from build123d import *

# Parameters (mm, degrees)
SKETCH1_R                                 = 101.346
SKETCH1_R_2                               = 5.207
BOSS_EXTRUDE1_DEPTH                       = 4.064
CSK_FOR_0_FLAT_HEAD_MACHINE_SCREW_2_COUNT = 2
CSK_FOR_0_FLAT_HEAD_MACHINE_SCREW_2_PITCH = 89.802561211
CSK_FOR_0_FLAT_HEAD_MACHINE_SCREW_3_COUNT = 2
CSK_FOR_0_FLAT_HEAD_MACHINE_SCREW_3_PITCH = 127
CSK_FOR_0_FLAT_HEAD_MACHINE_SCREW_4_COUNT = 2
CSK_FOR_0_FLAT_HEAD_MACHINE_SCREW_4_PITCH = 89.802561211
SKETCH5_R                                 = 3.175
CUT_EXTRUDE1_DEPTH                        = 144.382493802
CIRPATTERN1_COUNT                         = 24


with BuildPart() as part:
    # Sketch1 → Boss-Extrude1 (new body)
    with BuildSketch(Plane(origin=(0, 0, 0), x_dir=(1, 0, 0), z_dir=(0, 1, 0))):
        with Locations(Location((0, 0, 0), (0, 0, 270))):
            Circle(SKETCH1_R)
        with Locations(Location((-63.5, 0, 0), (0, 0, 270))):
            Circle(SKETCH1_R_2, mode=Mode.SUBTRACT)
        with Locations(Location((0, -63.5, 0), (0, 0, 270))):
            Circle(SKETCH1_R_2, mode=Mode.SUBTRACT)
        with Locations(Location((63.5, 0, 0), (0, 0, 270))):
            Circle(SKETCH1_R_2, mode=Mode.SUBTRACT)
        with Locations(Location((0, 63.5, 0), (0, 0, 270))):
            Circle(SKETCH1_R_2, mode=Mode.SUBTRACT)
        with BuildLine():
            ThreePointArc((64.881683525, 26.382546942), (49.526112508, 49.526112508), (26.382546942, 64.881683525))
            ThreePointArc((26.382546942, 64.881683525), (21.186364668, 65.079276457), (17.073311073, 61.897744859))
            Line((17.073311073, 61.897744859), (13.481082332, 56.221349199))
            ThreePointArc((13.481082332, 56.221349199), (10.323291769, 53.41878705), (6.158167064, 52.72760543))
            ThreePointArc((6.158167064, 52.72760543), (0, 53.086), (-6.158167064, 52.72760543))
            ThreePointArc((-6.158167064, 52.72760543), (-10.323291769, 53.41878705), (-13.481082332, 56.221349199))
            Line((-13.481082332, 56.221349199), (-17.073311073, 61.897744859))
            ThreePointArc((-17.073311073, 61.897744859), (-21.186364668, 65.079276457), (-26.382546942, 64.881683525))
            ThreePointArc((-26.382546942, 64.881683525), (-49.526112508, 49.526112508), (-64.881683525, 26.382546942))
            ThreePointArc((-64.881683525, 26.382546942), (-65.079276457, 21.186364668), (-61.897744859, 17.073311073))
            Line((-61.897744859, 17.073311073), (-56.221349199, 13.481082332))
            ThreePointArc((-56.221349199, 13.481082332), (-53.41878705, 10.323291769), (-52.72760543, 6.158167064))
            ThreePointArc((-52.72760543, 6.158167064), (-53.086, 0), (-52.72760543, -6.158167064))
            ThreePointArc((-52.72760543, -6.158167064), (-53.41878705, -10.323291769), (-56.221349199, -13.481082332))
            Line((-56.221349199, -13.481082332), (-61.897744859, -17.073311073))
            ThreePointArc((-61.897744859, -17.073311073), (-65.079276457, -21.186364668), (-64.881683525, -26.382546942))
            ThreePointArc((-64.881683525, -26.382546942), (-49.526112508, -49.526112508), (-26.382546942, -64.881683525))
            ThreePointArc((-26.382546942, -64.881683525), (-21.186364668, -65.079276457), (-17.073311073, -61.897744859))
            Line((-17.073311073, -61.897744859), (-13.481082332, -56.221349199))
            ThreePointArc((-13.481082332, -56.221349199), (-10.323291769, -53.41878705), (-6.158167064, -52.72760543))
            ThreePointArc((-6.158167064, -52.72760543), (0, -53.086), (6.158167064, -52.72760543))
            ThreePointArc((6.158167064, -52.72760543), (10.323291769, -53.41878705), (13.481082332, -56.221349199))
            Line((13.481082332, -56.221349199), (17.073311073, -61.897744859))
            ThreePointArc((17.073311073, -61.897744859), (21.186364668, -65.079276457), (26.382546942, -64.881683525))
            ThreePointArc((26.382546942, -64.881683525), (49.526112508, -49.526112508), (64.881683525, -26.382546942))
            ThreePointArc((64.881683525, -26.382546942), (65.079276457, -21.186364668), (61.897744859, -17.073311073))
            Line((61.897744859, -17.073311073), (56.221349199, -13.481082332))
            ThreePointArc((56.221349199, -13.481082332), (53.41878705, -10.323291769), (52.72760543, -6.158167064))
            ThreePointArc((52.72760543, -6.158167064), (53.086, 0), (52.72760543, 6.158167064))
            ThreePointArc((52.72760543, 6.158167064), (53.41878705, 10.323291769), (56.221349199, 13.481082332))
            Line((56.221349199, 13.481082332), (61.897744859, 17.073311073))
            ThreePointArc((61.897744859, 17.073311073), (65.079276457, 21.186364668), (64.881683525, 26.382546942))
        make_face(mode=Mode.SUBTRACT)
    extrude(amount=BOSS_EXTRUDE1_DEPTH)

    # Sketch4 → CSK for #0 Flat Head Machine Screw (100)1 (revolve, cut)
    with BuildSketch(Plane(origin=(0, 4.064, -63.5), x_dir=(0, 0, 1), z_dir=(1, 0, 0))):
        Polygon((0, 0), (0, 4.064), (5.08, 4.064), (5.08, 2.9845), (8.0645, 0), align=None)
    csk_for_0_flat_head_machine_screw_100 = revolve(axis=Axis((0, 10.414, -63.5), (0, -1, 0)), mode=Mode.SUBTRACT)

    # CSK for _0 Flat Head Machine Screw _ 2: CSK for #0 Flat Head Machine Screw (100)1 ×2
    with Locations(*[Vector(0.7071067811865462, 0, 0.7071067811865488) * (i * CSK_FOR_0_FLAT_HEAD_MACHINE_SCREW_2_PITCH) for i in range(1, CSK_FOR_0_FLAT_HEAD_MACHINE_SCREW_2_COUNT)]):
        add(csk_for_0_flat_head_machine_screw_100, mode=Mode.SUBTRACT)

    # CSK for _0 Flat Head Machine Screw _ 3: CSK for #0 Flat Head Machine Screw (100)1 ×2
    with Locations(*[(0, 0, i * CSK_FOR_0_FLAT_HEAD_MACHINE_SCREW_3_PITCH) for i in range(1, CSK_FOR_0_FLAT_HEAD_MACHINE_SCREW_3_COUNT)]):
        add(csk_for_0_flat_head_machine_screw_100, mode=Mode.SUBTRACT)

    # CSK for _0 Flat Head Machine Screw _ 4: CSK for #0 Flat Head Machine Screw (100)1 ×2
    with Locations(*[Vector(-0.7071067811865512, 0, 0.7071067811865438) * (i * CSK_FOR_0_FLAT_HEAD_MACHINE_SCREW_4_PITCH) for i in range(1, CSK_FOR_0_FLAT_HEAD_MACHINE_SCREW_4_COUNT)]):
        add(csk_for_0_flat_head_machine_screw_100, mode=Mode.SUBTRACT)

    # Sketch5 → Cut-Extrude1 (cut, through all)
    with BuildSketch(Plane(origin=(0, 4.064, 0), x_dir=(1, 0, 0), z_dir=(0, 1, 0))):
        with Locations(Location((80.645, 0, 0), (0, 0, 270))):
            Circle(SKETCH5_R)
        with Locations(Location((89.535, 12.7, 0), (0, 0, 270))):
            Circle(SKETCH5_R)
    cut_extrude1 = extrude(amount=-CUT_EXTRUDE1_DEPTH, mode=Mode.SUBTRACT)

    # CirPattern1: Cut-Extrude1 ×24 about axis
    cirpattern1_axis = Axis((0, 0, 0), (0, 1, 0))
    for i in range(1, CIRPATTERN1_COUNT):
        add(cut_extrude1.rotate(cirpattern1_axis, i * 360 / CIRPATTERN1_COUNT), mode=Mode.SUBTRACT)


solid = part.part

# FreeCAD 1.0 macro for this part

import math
import FreeCAD as App
import Part
import Sketcher

V = App.Vector
Q = App.Units.Quantity

doc = App.newDocument("Part")
body = doc.addObject("PartDesign::Body", "Body")

# Sketch on XZ plane
sketch1 = body.newObject("Sketcher::SketchObject", "Sketch")
sketch1.AttachmentSupport = (doc.getObject("XZ_Plane"), [""])
sketch1.MapMode = "FlatFace"
sketch1.addGeometry([
    Part.Circle(V(0, 0, 0), V(0, 0, 1), 101),  # 0
    Part.Circle(V(-64, 0, 0), V(0, 0, 1), 5),  # 1
    Part.Circle(V(0, -64, 0), V(0, 0, 1), 5),  # 2
    Part.Circle(V(64, 0, 0), V(0, 0, 1), 5),  # 3
    Part.ArcOfCircle(Part.Circle(V(0, 0, 0), V(0, 0, 1), 70), math.radians(-68), math.radians(-22)),  # 4
    Part.ArcOfCircle(Part.Circle(V(58, -24, 0), V(0, 0, 1), 8), math.radians(-22), math.radians(58)),  # 5
    Part.LineSegment(V(62, -17, 0), V(56, -13, 0)),  # 6
    Part.ArcOfCircle(Part.Circle(V(60, -7, 0), V(0, 0, 1), 8), math.radians(173), math.radians(238)),  # 7
    Part.ArcOfCircle(Part.Circle(V(0, 0, 0), V(0, 0, 1), 53), math.radians(-6.66), math.radians(6.66)),  # 8
    Part.ArcOfCircle(Part.Circle(V(60, 7, 0), V(0, 0, 1), 8), math.radians(122), math.radians(187)),  # 9
    Part.LineSegment(V(56, 13, 0), V(62, 17, 0)),  # 10
    Part.ArcOfCircle(Part.Circle(V(58, 24, 0), V(0, 0, 1), 8), math.radians(-58), math.radians(22)),  # 11
    Part.ArcOfCircle(Part.Circle(V(0, 0, 0), V(0, 0, 1), 70), math.radians(22), math.radians(68)),  # 12
    Part.ArcOfCircle(Part.Circle(V(24, 58, 0), V(0, 0, 1), 8), math.radians(68), math.radians(148)),  # 13
    Part.LineSegment(V(17, 62, 0), V(13, 56, 0)),  # 14
    Part.ArcOfCircle(Part.Circle(V(7, 60, 0), V(0, 0, 1), 8), math.radians(-97), math.radians(-32)),  # 15
    Part.ArcOfCircle(Part.Circle(V(0, 0, 0), V(0, 0, 1), 53), math.radians(83.34), math.radians(96.66)),  # 16
    Part.ArcOfCircle(Part.Circle(V(-7, 60, 0), V(0, 0, 1), 8), math.radians(-148), math.radians(-83)),  # 17
    Part.LineSegment(V(-13, 56, 0), V(-17, 62, 0)),  # 18
    Part.ArcOfCircle(Part.Circle(V(-24, 58, 0), V(0, 0, 1), 8), math.radians(32), math.radians(112)),  # 19
    Part.ArcOfCircle(Part.Circle(V(0, 0, 0), V(0, 0, 1), 70), math.radians(112), math.radians(158)),  # 20
    Part.ArcOfCircle(Part.Circle(V(-58, 24, 0), V(0, 0, 1), 8), math.radians(158), math.radians(238)),  # 21
    Part.LineSegment(V(-62, 17, 0), V(-56, 13, 0)),  # 22
    Part.ArcOfCircle(Part.Circle(V(-60, 7, 0), V(0, 0, 1), 8), math.radians(-7), math.radians(58)),  # 23
    Part.ArcOfCircle(Part.Circle(V(0, 0, 0), V(0, 0, 1), 53), math.radians(173.34), math.radians(186.66)),  # 24
    Part.ArcOfCircle(Part.Circle(V(-60, -7, 0), V(0, 0, 1), 8), math.radians(-58), math.radians(7)),  # 25
    Part.LineSegment(V(-56, -13, 0), V(-62, -17, 0)),  # 26
    Part.ArcOfCircle(Part.Circle(V(-58, -24, 0), V(0, 0, 1), 8), math.radians(122), math.radians(202)),  # 27
    Part.ArcOfCircle(Part.Circle(V(0, 0, 0), V(0, 0, 1), 70), math.radians(-158), math.radians(-112)),  # 28
    Part.ArcOfCircle(Part.Circle(V(-24, -58, 0), V(0, 0, 1), 8), math.radians(-112), math.radians(-32)),  # 29
    Part.LineSegment(V(-17, -62, 0), V(-13, -56, 0)),  # 30
    Part.ArcOfCircle(Part.Circle(V(-7, -60, 0), V(0, 0, 1), 8), math.radians(83), math.radians(148)),  # 31
    Part.ArcOfCircle(Part.Circle(V(0, 0, 0), V(0, 0, 1), 53), math.radians(-96.66), math.radians(-83.34)),  # 32
    Part.ArcOfCircle(Part.Circle(V(7, -60, 0), V(0, 0, 1), 8), math.radians(32), math.radians(97)),  # 33
    Part.LineSegment(V(13, -56, 0), V(17, -62, 0)),  # 34
    Part.ArcOfCircle(Part.Circle(V(24, -58, 0), V(0, 0, 1), 8), math.radians(-148), math.radians(-68)),  # 35
    Part.Circle(V(0, 64, 0), V(0, 0, 1), 5),  # 36
], False)
sketch1.addConstraint([
    Sketcher.Constraint("Tangent", 4, 2, 5, 1),
    Sketcher.Constraint("Tangent", 5, 2, 6, 1),
    Sketcher.Constraint("Tangent", 6, 2, 7, 2),
    Sketcher.Constraint("Tangent", 7, 1, 8, 1),
    Sketcher.Constraint("Tangent", 8, 2, 9, 2),
    Sketcher.Constraint("Tangent", 9, 1, 10, 1),
    Sketcher.Constraint("Tangent", 10, 2, 11, 1),
    Sketcher.Constraint("Tangent", 11, 2, 12, 1),
    Sketcher.Constraint("Tangent", 12, 2, 13, 1),
    Sketcher.Constraint("Tangent", 13, 2, 14, 1),
    Sketcher.Constraint("Tangent", 14, 2, 15, 2),
    Sketcher.Constraint("Tangent", 15, 1, 16, 1),
    Sketcher.Constraint("Tangent", 16, 2, 17, 2),
    Sketcher.Constraint("Tangent", 17, 1, 18, 1),
    Sketcher.Constraint("Tangent", 18, 2, 19, 1),
    Sketcher.Constraint("Tangent", 19, 2, 20, 1),
    Sketcher.Constraint("Tangent", 20, 2, 21, 1),
    Sketcher.Constraint("Tangent", 21, 2, 22, 1),
    Sketcher.Constraint("Tangent", 22, 2, 23, 2),
    Sketcher.Constraint("Tangent", 23, 1, 24, 1),
    Sketcher.Constraint("Tangent", 24, 2, 25, 2),
    Sketcher.Constraint("Tangent", 25, 1, 26, 1),
    Sketcher.Constraint("Tangent", 26, 2, 27, 1),
    Sketcher.Constraint("Tangent", 27, 2, 28, 1),
    Sketcher.Constraint("Tangent", 28, 2, 29, 1),
    Sketcher.Constraint("Tangent", 29, 2, 30, 1),
    Sketcher.Constraint("Tangent", 30, 2, 31, 2),
    Sketcher.Constraint("Tangent", 31, 1, 32, 1),
    Sketcher.Constraint("Tangent", 32, 2, 33, 2),
    Sketcher.Constraint("Tangent", 33, 1, 34, 1),
    Sketcher.Constraint("Tangent", 34, 2, 35, 1),
    Sketcher.Constraint("Tangent", 35, 2, 4, 1),
    Sketcher.Constraint("Coincident", 0, 3, -1, 1),
    Sketcher.Constraint("Coincident", 4, 3, -1, 1),
    Sketcher.Constraint("Coincident", 8, 3, -1, 1),
    Sketcher.Constraint("Coincident", 12, 3, -1, 1),
    Sketcher.Constraint("Coincident", 16, 3, -1, 1),
    Sketcher.Constraint("Coincident", 20, 3, -1, 1),
    Sketcher.Constraint("Coincident", 24, 3, -1, 1),
    Sketcher.Constraint("Coincident", 28, 3, -1, 1),
    Sketcher.Constraint("Coincident", 32, 3, -1, 1),
    Sketcher.Constraint("Equal", 1, 2),
    Sketcher.Constraint("Equal", 2, 3),
    Sketcher.Constraint("Equal", 5, 7),
    Sketcher.Constraint("Equal", 7, 9),
    Sketcher.Constraint("Equal", 9, 11),
    Sketcher.Constraint("Equal", 4, 12),
    Sketcher.Constraint("Equal", 11, 13),
    Sketcher.Constraint("Equal", 13, 15),
    Sketcher.Constraint("Equal", 8, 16),
    Sketcher.Constraint("Equal", 15, 17),
    Sketcher.Constraint("Equal", 17, 19),
    Sketcher.Constraint("Equal", 12, 20),
    Sketcher.Constraint("Equal", 19, 21),
    Sketcher.Constraint("Equal", 21, 23),
    Sketcher.Constraint("Equal", 16, 24),
    Sketcher.Constraint("Equal", 23, 25),
    Sketcher.Constraint("Equal", 25, 27),
    Sketcher.Constraint("Equal", 20, 28),
    Sketcher.Constraint("Equal", 27, 29),
    Sketcher.Constraint("Equal", 29, 31),
    Sketcher.Constraint("Equal", 24, 32),
    Sketcher.Constraint("Equal", 31, 33),
    Sketcher.Constraint("Equal", 33, 35),
    Sketcher.Constraint("Equal", 3, 36),
    Sketcher.Constraint("Symmetric", 1, 3, 3, 3, -1, 1),
    Sketcher.Constraint("Symmetric", 2, 3, 36, 3, -1, 1),
    Sketcher.Constraint("Symmetric", 5, 2, 21, 2, -1, 1),
    Sketcher.Constraint("Symmetric", 9, 1, 25, 1, -1, 1),
    Sketcher.Constraint("Symmetric", 13, 2, 29, 2, -1, 1),
    Sketcher.Constraint("Symmetric", 17, 1, 33, 1, -1, 1),
    Sketcher.Constraint("Symmetric", 14, 2, 17, 1, -2),
    Sketcher.Constraint("Symmetric", 10, 2, 21, 2, -2),
    Sketcher.Constraint("PointOnObject", 1, 3, -1),
    Sketcher.Constraint("PointOnObject", 2, 3, -2),
    Sketcher.Constraint("Perpendicular", 6, 14),
    Sketcher.Constraint("Equal", 10, 14),
    Sketcher.Constraint("Radius", 5, Q("0.3 in")),
    Sketcher.Constraint("Diameter", 0, Q("7.98 in")),
    Sketcher.Constraint("Diameter", 1, Q("0.41 in")),
    Sketcher.Constraint("Radius", 8, Q("2.09 in")),
    Sketcher.Constraint("DistanceX", 1, 3, -1, 1, Q("2.5 in")),
    Sketcher.Constraint("DistanceY", 2, 3, -1, 1, Q("2.5 in")),
    Sketcher.Constraint("Radius", 4, Q("2.7575 in")),
    Sketcher.Constraint("DistanceY", 5, 3, -1, 1, Q("23.512279 mm")),
    Sketcher.Constraint("DistanceX", -1, 1, 7, 3, Q("60.296161 mm")),
])
pad1 = body.newObject("PartDesign::Pad", "Pad")
pad1.Profile = sketch1
pad1.Length = Q("0.16 in")
pad1.Reversed = True

# Sketch on YZ plane
sketch2 = body.newObject("Sketcher::SketchObject", "Sketch001")
sketch2.AttachmentSupport = (doc.getObject("YZ_Plane"), [""])
sketch2.MapMode = "FlatFace"
sketch2.addGeometry([
    Part.LineSegment(V(0, -63.5, 0), V(4.1, -63.5, 0)),  # 0
    Part.LineSegment(V(4.1, -63.5, 0), V(4.1, -55.4, 0)),  # 1
    Part.LineSegment(V(4.1, -55.4, 0), V(1.1, -58.4, 0)),  # 2
    Part.LineSegment(V(1.1, -58.4, 0), V(0, -58.4, 0)),  # 3
    Part.LineSegment(V(0, -58.4, 0), V(0, -63.5, 0)),  # 4
], False)
sketch2.addGeometry(Part.LineSegment(V(4.1, -63.5, 0), V(0, -63.5, 0)), True)  # axis
sketch2.addConstraint([
    Sketcher.Constraint("Coincident", 0, 2, 1, 1),
    Sketcher.Constraint("Coincident", 1, 2, 2, 1),
    Sketcher.Constraint("Coincident", 2, 2, 3, 1),
    Sketcher.Constraint("Coincident", 3, 2, 4, 1),
    Sketcher.Constraint("Coincident", 4, 2, 0, 1),
    Sketcher.Constraint("Horizontal", 0),
    Sketcher.Constraint("Vertical", 1),
    Sketcher.Constraint("Horizontal", 3),
    Sketcher.Constraint("Vertical", 4),
    Sketcher.Constraint("Horizontal", 5),
    Sketcher.Constraint("Coincident", 5, 1, 0, 2),
    Sketcher.Constraint("PointOnObject", 3, 2, -2),
    Sketcher.Constraint("PointOnObject", 5, 2, -2),
    Sketcher.Constraint("DistanceY", 4, 2, 4, 1, Q("0.2 in")),
    Sketcher.Constraint("Angle", 2, Q("-135 deg")),
    Sketcher.Constraint("DistanceX", 0, 1, 0, 2, Q("0.16 in")),
    Sketcher.Constraint("DistanceY", 0, 2, -1, 1, Q("2.5 in")),
    Sketcher.Constraint("DistanceX", 3, 2, 3, 1, Q("0.0425 in")),
])
groove = body.newObject("PartDesign::Groove", "Groove")
groove.Profile = sketch2
groove.ReferenceAxis = (sketch2, ["Axis0"])
groove.Angle = 360
doc.recompute()

datumline = body.newObject("PartDesign::Line", "DatumLine")
datumline.Placement = App.Placement(V(0, 0, 0), App.Rotation(V(0, 0, 1), V(0.707106781, 0, 0.707106781)))
linearpattern = body.newObject("PartDesign::LinearPattern", "LinearPattern")
linearpattern.Originals = [groove]
linearpattern.Direction = (datumline, [""])
linearpattern.Mode = "offset"
linearpattern.Offset = 89.802561
linearpattern.Occurrences = 2
body.Tip = linearpattern
doc.recompute()

linearpattern2 = body.newObject("PartDesign::LinearPattern", "LinearPattern001")
linearpattern2.Originals = [groove]
linearpattern2.Direction = (doc.getObject("Z_Axis"), [""])
linearpattern2.Mode = "offset"
linearpattern2.Offset = Q("5 in")
linearpattern2.Occurrences = 2
body.Tip = linearpattern2
doc.recompute()

datumline2 = body.newObject("PartDesign::Line", "DatumLine001")
datumline2.Placement = App.Placement(V(0, 0, 0), App.Rotation(V(0, 0, 1), V(-0.707106781, 0, 0.707106781)))
linearpattern3 = body.newObject("PartDesign::LinearPattern", "LinearPattern002")
linearpattern3.Originals = [groove]
linearpattern3.Direction = (datumline2, [""])
linearpattern3.Mode = "offset"
linearpattern3.Offset = 89.802561
linearpattern3.Occurrences = 2
body.Tip = linearpattern3

# Sketch on XZ plane
sketch3 = body.newObject("Sketcher::SketchObject", "Sketch002")
sketch3.AttachmentSupport = (doc.getObject("XZ_Plane"), [""])
sketch3.MapMode = "FlatFace"
sketch3.AttachmentOffset = App.Placement(V(0, 0, -0.16 * 25.4), App.Rotation())
sketch3.addGeometry([
    Part.Circle(V(80.6, 0, 0), V(0, 0, 1), 3.2),
    Part.Circle(V(89.5, -12.7, 0), V(0, 0, 1), 3.2),
], False)
sketch3.addConstraint([
    Sketcher.Constraint("Equal", 0, 1),
    Sketcher.Constraint("PointOnObject", 0, 3, -1),
    Sketcher.Constraint("Diameter", 0, Q("0.25 in")),
    Sketcher.Constraint("DistanceY", 1, 3, -1, 1, Q("0.5 in")),
    Sketcher.Constraint("DistanceX", 0, 3, 1, 3, Q("0.35 in")),
    Sketcher.Constraint("DistanceX", -1, 1, 0, 3, Q("3.175 in")),
])
pocket1 = body.newObject("PartDesign::Pocket", "Pocket")
pocket1.Profile = sketch3
pocket1.Type = "ThroughAll"
pocket1.Reversed = True
doc.recompute()

polarpattern = body.newObject("PartDesign::PolarPattern", "PolarPattern")
polarpattern.Originals = [pocket1]
polarpattern.Axis = (doc.getObject("Y_Axis"), [""])
polarpattern.Angle = 360
polarpattern.Occurrences = 24
body.Tip = polarpattern

doc.recompute()
